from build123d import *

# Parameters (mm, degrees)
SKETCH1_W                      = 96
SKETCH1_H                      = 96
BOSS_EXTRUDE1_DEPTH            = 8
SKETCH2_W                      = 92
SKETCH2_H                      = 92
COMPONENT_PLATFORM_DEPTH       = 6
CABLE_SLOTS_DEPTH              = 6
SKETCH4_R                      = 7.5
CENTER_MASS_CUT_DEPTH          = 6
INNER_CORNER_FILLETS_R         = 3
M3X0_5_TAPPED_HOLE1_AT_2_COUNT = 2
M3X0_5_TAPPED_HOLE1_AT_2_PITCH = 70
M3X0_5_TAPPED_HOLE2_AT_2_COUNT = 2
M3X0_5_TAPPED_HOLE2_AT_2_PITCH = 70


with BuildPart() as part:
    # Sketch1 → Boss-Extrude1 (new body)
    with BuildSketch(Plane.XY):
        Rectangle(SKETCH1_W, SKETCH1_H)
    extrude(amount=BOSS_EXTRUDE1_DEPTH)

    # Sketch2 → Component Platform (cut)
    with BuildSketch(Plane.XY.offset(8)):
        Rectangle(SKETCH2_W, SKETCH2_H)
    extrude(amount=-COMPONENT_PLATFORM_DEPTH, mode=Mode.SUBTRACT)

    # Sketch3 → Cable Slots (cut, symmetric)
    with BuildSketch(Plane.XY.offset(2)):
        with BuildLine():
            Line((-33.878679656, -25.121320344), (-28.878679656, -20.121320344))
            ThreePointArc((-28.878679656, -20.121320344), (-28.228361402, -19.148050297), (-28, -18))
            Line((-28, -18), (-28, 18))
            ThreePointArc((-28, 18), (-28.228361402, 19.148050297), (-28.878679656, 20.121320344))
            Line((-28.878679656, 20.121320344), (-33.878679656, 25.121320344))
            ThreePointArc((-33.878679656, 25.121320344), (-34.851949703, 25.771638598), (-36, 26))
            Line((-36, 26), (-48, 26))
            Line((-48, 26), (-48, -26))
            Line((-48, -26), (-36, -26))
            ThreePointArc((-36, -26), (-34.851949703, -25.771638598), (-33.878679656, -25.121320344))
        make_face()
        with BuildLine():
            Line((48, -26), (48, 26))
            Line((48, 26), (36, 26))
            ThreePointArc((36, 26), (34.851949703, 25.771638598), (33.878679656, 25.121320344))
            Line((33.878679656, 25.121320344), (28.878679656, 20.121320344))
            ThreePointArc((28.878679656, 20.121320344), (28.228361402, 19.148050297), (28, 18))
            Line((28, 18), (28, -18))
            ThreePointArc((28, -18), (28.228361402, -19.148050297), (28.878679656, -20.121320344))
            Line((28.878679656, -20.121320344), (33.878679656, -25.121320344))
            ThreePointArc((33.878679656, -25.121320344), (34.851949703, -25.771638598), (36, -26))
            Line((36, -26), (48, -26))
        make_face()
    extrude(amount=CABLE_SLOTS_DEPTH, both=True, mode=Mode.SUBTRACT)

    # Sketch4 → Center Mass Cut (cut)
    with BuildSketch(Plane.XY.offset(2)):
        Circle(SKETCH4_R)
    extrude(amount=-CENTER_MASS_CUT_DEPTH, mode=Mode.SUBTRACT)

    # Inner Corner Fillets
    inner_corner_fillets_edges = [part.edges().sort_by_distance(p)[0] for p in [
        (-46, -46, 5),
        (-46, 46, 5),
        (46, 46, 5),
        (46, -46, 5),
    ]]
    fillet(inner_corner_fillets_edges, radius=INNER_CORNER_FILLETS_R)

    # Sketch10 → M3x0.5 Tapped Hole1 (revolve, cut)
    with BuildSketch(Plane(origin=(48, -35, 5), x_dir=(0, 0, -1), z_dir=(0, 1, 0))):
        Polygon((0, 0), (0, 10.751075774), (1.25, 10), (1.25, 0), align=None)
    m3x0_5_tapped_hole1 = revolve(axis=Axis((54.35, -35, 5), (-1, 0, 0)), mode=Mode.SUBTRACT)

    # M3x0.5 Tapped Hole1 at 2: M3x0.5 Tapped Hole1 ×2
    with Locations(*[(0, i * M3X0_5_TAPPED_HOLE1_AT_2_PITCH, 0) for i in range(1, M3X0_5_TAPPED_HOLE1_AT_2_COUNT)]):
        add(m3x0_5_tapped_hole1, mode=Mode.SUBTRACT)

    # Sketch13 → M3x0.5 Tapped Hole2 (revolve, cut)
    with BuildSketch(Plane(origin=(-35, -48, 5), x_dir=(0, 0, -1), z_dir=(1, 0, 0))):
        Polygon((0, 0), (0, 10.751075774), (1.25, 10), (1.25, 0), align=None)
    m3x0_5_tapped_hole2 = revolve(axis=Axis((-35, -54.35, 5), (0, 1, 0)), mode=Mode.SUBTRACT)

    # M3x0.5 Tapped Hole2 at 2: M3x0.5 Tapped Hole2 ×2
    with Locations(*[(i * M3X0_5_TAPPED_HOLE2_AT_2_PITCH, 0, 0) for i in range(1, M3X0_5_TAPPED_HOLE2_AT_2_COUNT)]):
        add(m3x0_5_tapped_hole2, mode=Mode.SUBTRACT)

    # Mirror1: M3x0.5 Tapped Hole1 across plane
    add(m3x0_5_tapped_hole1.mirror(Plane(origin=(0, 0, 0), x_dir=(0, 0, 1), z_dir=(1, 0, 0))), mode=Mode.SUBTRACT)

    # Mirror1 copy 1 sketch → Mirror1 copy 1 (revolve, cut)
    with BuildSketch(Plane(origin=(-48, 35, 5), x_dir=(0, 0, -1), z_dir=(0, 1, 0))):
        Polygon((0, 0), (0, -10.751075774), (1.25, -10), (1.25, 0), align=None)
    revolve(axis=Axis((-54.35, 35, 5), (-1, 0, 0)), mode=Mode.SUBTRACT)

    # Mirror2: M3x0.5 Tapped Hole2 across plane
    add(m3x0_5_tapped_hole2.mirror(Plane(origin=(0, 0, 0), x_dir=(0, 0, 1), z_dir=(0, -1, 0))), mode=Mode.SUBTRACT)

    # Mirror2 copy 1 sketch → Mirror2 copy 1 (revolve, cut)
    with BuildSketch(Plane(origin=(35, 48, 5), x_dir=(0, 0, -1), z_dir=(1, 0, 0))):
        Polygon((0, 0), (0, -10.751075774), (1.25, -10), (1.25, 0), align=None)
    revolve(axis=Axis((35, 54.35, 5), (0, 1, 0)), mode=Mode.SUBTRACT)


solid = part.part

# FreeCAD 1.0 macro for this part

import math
import FreeCAD as App
import Part
import Sketcher
Q = App.Units.Quantity


def edges_at(feature, points):
    """Names of the edges that pass closest to the given points."""
    edges = feature.Shape.Edges
    near = lambda p: min(range(len(edges)), key=lambda i: edges[i].distToShape(Part.Vertex(*p))[0])
    return sorted({f"Edge{near(p) + 1}" for p in points})


def add_polygon(sketch, points):
    """Adds a closed chain of lines whose ends are joined by coincident constraints."""
    first, n = sketch.GeometryCount, len(points)
    for a, b in zip(points, points[1:] + points[:1]):
        sketch.addGeometry(Part.LineSegment(App.Vector(*a, 0), App.Vector(*b, 0)), False)
    for i in range(n):
        sketch.addConstraint(Sketcher.Constraint("Coincident", first + i, 2, first + (i + 1) % n, 1))

doc = App.newDocument("Part")
body = doc.addObject("PartDesign::Body", "Body")

# Sketch on XY plane
sketch1 = body.newObject("Sketcher::SketchObject", "Sketch")
sketch1.AttachmentSupport = (doc.getObject("XY_Plane"), [""])
sketch1.MapMode = "FlatFace"
add_polygon(sketch1, [(-48, 48), (-48, -48), (48, -48), (48, 48)])  # lines 0-3
sketch1.addConstraint([
    Sketcher.Constraint("Vertical", 0),
    Sketcher.Constraint("Horizontal", 1),
    Sketcher.Constraint("Vertical", 2),
    Sketcher.Constraint("Horizontal", 3),
    Sketcher.Constraint("Symmetric", 0, 2, 2, 2, -1, 1),
    Sketcher.Constraint("Equal", 3, 0),
    Sketcher.Constraint("DistanceX", 1, 1, 1, 2, Q("96 mm")),
])
pad1 = body.newObject("PartDesign::Pad", "Pad")
pad1.Profile = sketch1
pad1.Length = 8

# Sketch on XY plane
sketch2 = body.newObject("Sketcher::SketchObject", "Sketch001")
sketch2.AttachmentSupport = (doc.getObject("XY_Plane"), [""])
sketch2.MapMode = "FlatFace"
sketch2.AttachmentOffset = App.Placement(App.Vector(0, 0, 8), App.Rotation())
add_polygon(sketch2, [(-46, 46), (-46, -46), (46, -46), (46, 46)])  # lines 0-3
sketch2.addConstraint([
    Sketcher.Constraint("Vertical", 0),
    Sketcher.Constraint("Horizontal", 1),
    Sketcher.Constraint("Vertical", 2),
    Sketcher.Constraint("Horizontal", 3),
    Sketcher.Constraint("Symmetric", 0, 2, 2, 2, -1, 1),
    Sketcher.Constraint("Equal", 3, 0),
    Sketcher.Constraint("DistanceX", 1, 1, 1, 2, Q("92 mm")),
])
pocket1 = body.newObject("PartDesign::Pocket", "Pocket")
pocket1.Profile = sketch2
pocket1.Length = 6

# Sketch on XY plane
sketch3 = body.newObject("Sketcher::SketchObject", "Sketch002")
sketch3.AttachmentSupport = (doc.getObject("XY_Plane"), [""])
sketch3.MapMode = "FlatFace"
sketch3.AttachmentOffset = App.Placement(App.Vector(0, 0, 2), App.Rotation())
sketch3.addGeometry([
    Part.LineSegment(App.Vector(-33.9, -25.1, 0), App.Vector(-28.9, -20.1, 0)),  # 0
    Part.ArcOfCircle(Part.Circle(App.Vector(-31, -18, 0), App.Vector(0, 0, 1), 3), math.radians(-45), math.radians(0)),  # 1
    Part.LineSegment(App.Vector(-28, -18, 0), App.Vector(-28, 18, 0)),  # 2
    Part.ArcOfCircle(Part.Circle(App.Vector(-31, 18, 0), App.Vector(0, 0, 1), 3), math.radians(0), math.radians(45)),  # 3
    Part.LineSegment(App.Vector(-28.9, 20.1, 0), App.Vector(-33.9, 25.1, 0)),  # 4
    Part.ArcOfCircle(Part.Circle(App.Vector(-36, 23, 0), App.Vector(0, 0, 1), 3), math.radians(45), math.radians(90)),  # 5
    Part.LineSegment(App.Vector(-36, 26, 0), App.Vector(-48, 26, 0)),  # 6
    Part.LineSegment(App.Vector(-48, 26, 0), App.Vector(-48, -26, 0)),  # 7
    Part.LineSegment(App.Vector(-48, -26, 0), App.Vector(-36, -26, 0)),  # 8
    Part.ArcOfCircle(Part.Circle(App.Vector(-36, -23, 0), App.Vector(0, 0, 1), 3), math.radians(-90), math.radians(-45)),  # 9
    Part.LineSegment(App.Vector(48, -26, 0), App.Vector(48, 26, 0)),  # 10
    Part.LineSegment(App.Vector(48, 26, 0), App.Vector(36, 26, 0)),  # 11
    Part.ArcOfCircle(Part.Circle(App.Vector(36, 23, 0), App.Vector(0, 0, 1), 3), math.radians(90), math.radians(135)),  # 12
    Part.LineSegment(App.Vector(33.9, 25.1, 0), App.Vector(28.9, 20.1, 0)),  # 13
    Part.ArcOfCircle(Part.Circle(App.Vector(31, 18, 0), App.Vector(0, 0, 1), 3), math.radians(135), math.radians(180)),  # 14
    Part.LineSegment(App.Vector(28, 18, 0), App.Vector(28, -18, 0)),  # 15
    Part.ArcOfCircle(Part.Circle(App.Vector(31, -18, 0), App.Vector(0, 0, 1), 3), math.radians(180), math.radians(225)),  # 16
    Part.LineSegment(App.Vector(28.9, -20.1, 0), App.Vector(33.9, -25.1, 0)),  # 17
    Part.ArcOfCircle(Part.Circle(App.Vector(36, -23, 0), App.Vector(0, 0, 1), 3), math.radians(-135), math.radians(-90)),  # 18
    Part.LineSegment(App.Vector(36, -26, 0), App.Vector(48, -26, 0)),  # 19
], False)
sketch3.addConstraint([
    Sketcher.Constraint("Tangent", 0, 2, 1, 1),
    Sketcher.Constraint("Tangent", 1, 2, 2, 1),
    Sketcher.Constraint("Tangent", 2, 2, 3, 1),
    Sketcher.Constraint("Tangent", 3, 2, 4, 1),
    Sketcher.Constraint("Tangent", 4, 2, 5, 1),
    Sketcher.Constraint("Tangent", 5, 2, 6, 1),
    Sketcher.Constraint("Coincident", 6, 2, 7, 1),
    Sketcher.Constraint("Coincident", 7, 2, 8, 1),
    Sketcher.Constraint("Tangent", 8, 2, 9, 1),
    Sketcher.Constraint("Tangent", 9, 2, 0, 1),
    Sketcher.Constraint("Coincident", 10, 2, 11, 1),
    Sketcher.Constraint("Tangent", 11, 2, 12, 1),
    Sketcher.Constraint("Tangent", 12, 2, 13, 1),
    Sketcher.Constraint("Tangent", 13, 2, 14, 1),
    Sketcher.Constraint("Tangent", 14, 2, 15, 1),
    Sketcher.Constraint("Tangent", 15, 2, 16, 1),
    Sketcher.Constraint("Tangent", 16, 2, 17, 1),
    Sketcher.Constraint("Tangent", 17, 2, 18, 1),
    Sketcher.Constraint("Tangent", 18, 2, 19, 1),
    Sketcher.Constraint("Coincident", 19, 2, 10, 1),
    Sketcher.Constraint("Vertical", 2),
    Sketcher.Constraint("Horizontal", 6),
    Sketcher.Constraint("Vertical", 7),
    Sketcher.Constraint("Horizontal", 8),
    Sketcher.Constraint("Vertical", 10),
    Sketcher.Constraint("Horizontal", 11),
    Sketcher.Constraint("Vertical", 15),
    Sketcher.Constraint("Horizontal", 19),
    Sketcher.Constraint("Equal", 1, 3),
    Sketcher.Constraint("Equal", 3, 5),
    Sketcher.Constraint("Equal", 5, 9),
    Sketcher.Constraint("Equal", 9, 12),
    Sketcher.Constraint("Equal", 12, 14),
    Sketcher.Constraint("Equal", 14, 16),
    Sketcher.Constraint("Equal", 16, 18),
    Sketcher.Constraint("Symmetric", 9, 3, 12, 3, -1, 1),
    Sketcher.Constraint("Symmetric", 1, 3, 14, 3, -1, 1),
    Sketcher.Constraint("Symmetric", 5, 3, 18, 3, -1, 1),
    Sketcher.Constraint("Symmetric", 5, 3, 12, 3, -2),
    Sketcher.Constraint("Perpendicular", 0, 4),
    Sketcher.Constraint("Perpendicular", 13, 17),
    Sketcher.Constraint("Horizontal", 3, 3, 14, 3),
    Sketcher.Constraint("Equal", 8, 11),
    Sketcher.Constraint("Radius", 1, Q("3 mm")),
    Sketcher.Constraint("DistanceX", 6, 2, 6, 1, Q("12 mm")),
    Sketcher.Constraint("DistanceY", 2, 1, 2, 2, Q("36 mm")),
    Sketcher.Constraint("DistanceY", 7, 2, 7, 1, Q("52 mm")),
    Sketcher.Constraint("DistanceX", 1, 3, -1, 1, Q("31 mm")),
])
pocket2 = body.newObject("PartDesign::Pocket", "Pocket001")
pocket2.Profile = sketch3
pocket2.Length = 12
pocket2.Midplane = True

# Sketch on XY plane
sketch4 = body.newObject("Sketcher::SketchObject", "Sketch003")
sketch4.AttachmentSupport = (doc.getObject("XY_Plane"), [""])
sketch4.MapMode = "FlatFace"
sketch4.AttachmentOffset = App.Placement(App.Vector(0, 0, 2), App.Rotation())
sketch4.addGeometry(Part.Circle(App.Vector(0, 0, 0), App.Vector(0, 0, 1), 8), False)
sketch4.addConstraint([
    Sketcher.Constraint("Coincident", 0, 3, -1, 1),
    Sketcher.Constraint("Diameter", 0, Q("15 mm")),
])
pocket3 = body.newObject("PartDesign::Pocket", "Pocket002")
pocket3.Profile = sketch4
pocket3.Length = 6
doc.recompute()

fillet = body.newObject("PartDesign::Fillet", "Fillet")
fillet.Base = (pocket3, edges_at(pocket3, [
    (-46, -46, 5),
    (-46, 46, 5),
    (46, 46, 5),
    (46, -46, 5),
]))
fillet.Radius = 3

# Sketch on XZ plane
sketch5 = body.newObject("Sketcher::SketchObject", "Sketch004")
sketch5.AttachmentSupport = (doc.getObject("XZ_Plane"), [""])
sketch5.MapMode = "FlatFace"
sketch5.AttachmentOffset = App.Placement(App.Vector(0, 0, 35), App.Rotation())
add_polygon(sketch5, [(37.2, 5), (48, 5), (48, 3.8), (38, 3.8)])  # lines 0-3
sketch5.addGeometry(Part.LineSegment(App.Vector(48, 5, 0), App.Vector(37.2, 5, 0)), True)  # axis
sketch5.addConstraint([
    Sketcher.Constraint("Horizontal", 0),
    Sketcher.Constraint("Vertical", 1),
    Sketcher.Constraint("Horizontal", 2),
    Sketcher.Constraint("Horizontal", 4),
    Sketcher.Constraint("Coincident", 4, 1, 0, 2),
    Sketcher.Constraint("Equal", 0, 4),
    Sketcher.Constraint("DistanceX", 2, 2, 2, 1, Q("10 mm")),
    Sketcher.Constraint("Angle", 3, Q("121 deg")),
    Sketcher.Constraint("DistanceX", -1, 1, 0, 2, Q("48 mm")),
    Sketcher.Constraint("DistanceY", -1, 1, 0, 2, Q("5 mm")),
    Sketcher.Constraint("DistanceY", 1, 2, 1, 1, Q("1.25 mm")),
])
groove = body.newObject("PartDesign::Groove", "Groove")
groove.Profile = sketch5
groove.ReferenceAxis = (sketch5, ["Axis0"])
groove.Angle = 360
doc.recompute()

linearpattern = body.newObject("PartDesign::LinearPattern", "LinearPattern")
linearpattern.Originals = [groove]
linearpattern.Direction = (doc.getObject("Y_Axis"), [""])
linearpattern.Mode = "offset"
linearpattern.Offset = 70
linearpattern.Occurrences = 2
body.Tip = linearpattern

# Sketch on YZ plane
sketch6 = body.newObject("Sketcher::SketchObject", "Sketch005")
sketch6.AttachmentSupport = (doc.getObject("YZ_Plane"), [""])
sketch6.MapMode = "FlatFace"
sketch6.AttachmentOffset = App.Placement(App.Vector(0, 0, -35), App.Rotation())
add_polygon(sketch6, [(-37.2, 5), (-48, 5), (-48, 3.8), (-38, 3.8)])  # lines 0-3
sketch6.addGeometry(Part.LineSegment(App.Vector(-48, 5, 0), App.Vector(-37.2, 5, 0)), True)  # axis
sketch6.addConstraint([
    Sketcher.Constraint("Horizontal", 0),
    Sketcher.Constraint("Vertical", 1),
    Sketcher.Constraint("Horizontal", 2),
    Sketcher.Constraint("Horizontal", 4),
    Sketcher.Constraint("Coincident", 4, 1, 0, 2),
    Sketcher.Constraint("Equal", 0, 4),
    Sketcher.Constraint("DistanceX", 2, 1, 2, 2, Q("10 mm")),
    Sketcher.Constraint("Angle", 3, Q("59 deg")),
    Sketcher.Constraint("DistanceX", 0, 2, -1, 1, Q("48 mm")),
    Sketcher.Constraint("DistanceY", -1, 1, 0, 2, Q("5 mm")),
    Sketcher.Constraint("DistanceY", 1, 2, 1, 1, Q("1.25 mm")),
])
groove2 = body.newObject("PartDesign::Groove", "Groove001")
groove2.Profile = sketch6
groove2.ReferenceAxis = (sketch6, ["Axis0"])
groove2.Angle = 360
doc.recompute()

linearpattern2 = body.newObject("PartDesign::LinearPattern", "LinearPattern001")
linearpattern2.Originals = [groove2]
linearpattern2.Direction = (doc.getObject("X_Axis"), [""])
linearpattern2.Mode = "offset"
linearpattern2.Offset = 70
linearpattern2.Occurrences = 2
body.Tip = linearpattern2
doc.recompute()

mirrored = body.newObject("PartDesign::Mirrored", "Mirrored")
mirrored.Originals = [groove]
mirrored.MirrorPlane = (doc.getObject("YZ_Plane"), [""])
body.Tip = mirrored

# Sketch on XZ plane
sketch7 = body.newObject("Sketcher::SketchObject", "Sketch006")
sketch7.AttachmentSupport = (doc.getObject("XZ_Plane"), [""])
sketch7.MapMode = "FlatFace"
sketch7.AttachmentOffset = App.Placement(App.Vector(0, 0, -35), App.Rotation())
add_polygon(sketch7, [(-48, 5), (-37.2, 5), (-38, 3.8), (-48, 3.8)])  # lines 0-3
sketch7.addGeometry(Part.LineSegment(App.Vector(-37.2, 5, 0), App.Vector(-48, 5, 0)), True)  # axis
sketch7.addConstraint([
    Sketcher.Constraint("Horizontal", 0),
    Sketcher.Constraint("Horizontal", 2),
    Sketcher.Constraint("Vertical", 3),
    Sketcher.Constraint("Horizontal", 4),
    Sketcher.Constraint("Coincident", 4, 1, 0, 2),
    Sketcher.Constraint("Vertical", 2, 2, 4, 2),
    Sketcher.Constraint("DistanceX", 2, 2, 2, 1, Q("10 mm")),
    Sketcher.Constraint("Angle", 1, Q("-121 deg")),
    Sketcher.Constraint("DistanceY", -1, 1, 0, 2, Q("5 mm")),
    Sketcher.Constraint("DistanceX", 1, 2, -1, 1, Q("38 mm")),
    Sketcher.Constraint("DistanceY", 3, 1, 3, 2, Q("1.25 mm")),
])
groove3 = body.newObject("PartDesign::Groove", "Groove002")
groove3.Profile = sketch7
groove3.ReferenceAxis = (sketch7, ["Axis0"])
groove3.Angle = 360
doc.recompute()

mirrored2 = body.newObject("PartDesign::Mirrored", "Mirrored001")
mirrored2.Originals = [groove2]
mirrored2.MirrorPlane = (doc.getObject("XZ_Plane"), [""])
body.Tip = mirrored2

# Sketch on YZ plane
sketch8 = body.newObject("Sketcher::SketchObject", "Sketch007")
sketch8.AttachmentSupport = (doc.getObject("YZ_Plane"), [""])
sketch8.MapMode = "FlatFace"
sketch8.AttachmentOffset = App.Placement(App.Vector(0, 0, 35), App.Rotation())
add_polygon(sketch8, [(48, 5), (37.2, 5), (38, 3.8), (48, 3.8)])  # lines 0-3
sketch8.addGeometry(Part.LineSegment(App.Vector(37.2, 5, 0), App.Vector(48, 5, 0)), True)  # axis
sketch8.addConstraint([
    Sketcher.Constraint("Horizontal", 0),
    Sketcher.Constraint("Horizontal", 2),
    Sketcher.Constraint("Vertical", 3),
    Sketcher.Constraint("Horizontal", 4),
    Sketcher.Constraint("Coincident", 4, 1, 0, 2),
    Sketcher.Constraint("Vertical", 2, 2, 4, 2),
    Sketcher.Constraint("DistanceX", 2, 1, 2, 2, Q("10 mm")),
    Sketcher.Constraint("Angle", 1, Q("-59 deg")),
    Sketcher.Constraint("DistanceY", -1, 1, 0, 2, Q("5 mm")),
    Sketcher.Constraint("DistanceX", -1, 1, 1, 2, Q("38 mm")),
    Sketcher.Constraint("DistanceY", 3, 1, 3, 2, Q("1.25 mm")),
])
groove4 = body.newObject("PartDesign::Groove", "Groove003")
groove4.Profile = sketch8
groove4.ReferenceAxis = (sketch8, ["Axis0"])
groove4.Angle = 360

doc.recompute()
